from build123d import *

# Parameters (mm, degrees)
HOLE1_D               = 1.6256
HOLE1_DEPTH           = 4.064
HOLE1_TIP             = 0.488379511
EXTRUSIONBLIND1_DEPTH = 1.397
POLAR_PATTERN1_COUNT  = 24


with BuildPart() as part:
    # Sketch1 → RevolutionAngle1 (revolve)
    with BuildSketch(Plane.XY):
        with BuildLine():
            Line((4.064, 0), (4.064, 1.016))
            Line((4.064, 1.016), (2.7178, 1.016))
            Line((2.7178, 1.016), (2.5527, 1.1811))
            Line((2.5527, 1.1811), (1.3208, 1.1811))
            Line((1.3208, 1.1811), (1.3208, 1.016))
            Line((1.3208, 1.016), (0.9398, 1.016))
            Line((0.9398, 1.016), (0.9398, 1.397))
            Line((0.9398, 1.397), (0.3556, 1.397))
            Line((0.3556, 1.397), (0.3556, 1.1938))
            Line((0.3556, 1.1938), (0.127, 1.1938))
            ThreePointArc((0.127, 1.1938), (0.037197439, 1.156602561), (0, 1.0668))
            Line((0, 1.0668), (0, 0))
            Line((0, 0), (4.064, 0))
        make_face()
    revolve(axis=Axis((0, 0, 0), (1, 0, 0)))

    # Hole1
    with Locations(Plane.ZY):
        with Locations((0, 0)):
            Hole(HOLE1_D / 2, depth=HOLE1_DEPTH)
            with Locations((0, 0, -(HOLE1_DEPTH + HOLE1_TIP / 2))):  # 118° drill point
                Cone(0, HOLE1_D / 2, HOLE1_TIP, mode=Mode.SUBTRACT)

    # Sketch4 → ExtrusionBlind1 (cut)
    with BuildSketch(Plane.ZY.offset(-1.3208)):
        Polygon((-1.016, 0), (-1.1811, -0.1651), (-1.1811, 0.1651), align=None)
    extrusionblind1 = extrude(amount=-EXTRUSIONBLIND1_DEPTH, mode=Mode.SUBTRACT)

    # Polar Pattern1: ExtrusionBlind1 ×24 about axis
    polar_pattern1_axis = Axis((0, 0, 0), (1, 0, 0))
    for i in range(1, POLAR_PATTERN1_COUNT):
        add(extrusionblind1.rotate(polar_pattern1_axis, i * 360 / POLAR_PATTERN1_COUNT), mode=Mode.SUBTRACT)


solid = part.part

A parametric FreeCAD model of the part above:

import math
import FreeCAD as App
import Part
import Sketcher
Q = App.Units.Quantity

doc = App.newDocument("Part")
params = doc.addObject("Spreadsheet::Sheet", "Params")
for row, (alias, value) in enumerate([
    ("sketch1_radius", "0.005 in"),
    ("sketch1_width", "0.16 in"),
    ("sketch1_height", "0.04 in"),
    ("sketch1_width2", "0.053 in"),
    ("sketch1_width3", "0.015 in"),
    ("revolution_angle", "360 deg"),
    ("sketch2_diameter", "0.064 in"),
    ("hole_diameter", "0.064 in"),
    ("hole_depth", "0.16 in"),
    ("sketch3_width", "0.013 in"),
    ("pocket1_length", "0.055 in"),
], start=1):
    params.set(f"A{row}", alias)
    params.set(f"B{row}", "=" + value)
    params.setAlias(f"B{row}", alias)

body = doc.addObject("PartDesign::Body", "Body")

# Sketch on XY plane
sketch1 = body.newObject("Sketcher::SketchObject", "Sketch")
sketch1.AttachmentSupport = (doc.getObject("XY_Plane"), [""])
sketch1.MapMode = "FlatFace"
sketch1.addGeometry([
    Part.LineSegment(App.Vector(4.064, 0, 0), App.Vector(4.064, 1.016, 0)),  # 0
    Part.LineSegment(App.Vector(4.064, 1.016, 0), App.Vector(2.7178, 1.016, 0)),  # 1
    Part.LineSegment(App.Vector(2.7178, 1.016, 0), App.Vector(2.5527, 1.1811, 0)),  # 2
    Part.LineSegment(App.Vector(2.5527, 1.1811, 0), App.Vector(1.3208, 1.1811, 0)),  # 3
    Part.LineSegment(App.Vector(1.3208, 1.1811, 0), App.Vector(1.3208, 1.016, 0)),  # 4
    Part.LineSegment(App.Vector(1.3208, 1.016, 0), App.Vector(0.9398, 1.016, 0)),  # 5
    Part.LineSegment(App.Vector(0.9398, 1.016, 0), App.Vector(0.9398, 1.397, 0)),  # 6
    Part.LineSegment(App.Vector(0.9398, 1.397, 0), App.Vector(0.3556, 1.397, 0)),  # 7
    Part.LineSegment(App.Vector(0.3556, 1.397, 0), App.Vector(0.3556, 1.1938, 0)),  # 8
    Part.LineSegment(App.Vector(0.3556, 1.1938, 0), App.Vector(0.127, 1.1938, 0)),  # 9
    Part.ArcOfCircle(Part.Circle(App.Vector(0.127, 1.0668, 0), App.Vector(0, 0, 1), 0.127), math.radians(90), math.radians(180)),  # 10
    Part.LineSegment(App.Vector(0, 1.0668, 0), App.Vector(0, 0, 0)),  # 11
    Part.LineSegment(App.Vector(0, 0, 0), App.Vector(4.064, 0, 0)),  # 12
], False)
sketch1.addConstraint([
    Sketcher.Constraint("Coincident", 0, 2, 1, 1),
    Sketcher.Constraint("Coincident", 1, 2, 2, 1),
    Sketcher.Constraint("Coincident", 2, 2, 3, 1),
    Sketcher.Constraint("Coincident", 3, 2, 4, 1),
    Sketcher.Constraint("Coincident", 4, 2, 5, 1),
    Sketcher.Constraint("Coincident", 5, 2, 6, 1),
    Sketcher.Constraint("Coincident", 6, 2, 7, 1),
    Sketcher.Constraint("Coincident", 7, 2, 8, 1),
    Sketcher.Constraint("Coincident", 8, 2, 9, 1),
    Sketcher.Constraint("Tangent", 9, 2, 10, 1),
    Sketcher.Constraint("Tangent", 10, 2, 11, 1),
    Sketcher.Constraint("Coincident", 11, 2, 12, 1),
    Sketcher.Constraint("Coincident", 12, 2, 0, 1),
    Sketcher.Constraint("Vertical", 0),
    Sketcher.Constraint("Horizontal", 1),
    Sketcher.Constraint("Horizontal", 3),
    Sketcher.Constraint("Vertical", 4),
    Sketcher.Constraint("Horizontal", 5),
    Sketcher.Constraint("Vertical", 6),
    Sketcher.Constraint("Horizontal", 7),
    Sketcher.Constraint("Vertical", 8),
    Sketcher.Constraint("Horizontal", 9),
    Sketcher.Constraint("Vertical", 11),
    Sketcher.Constraint("Horizontal", 12),
    Sketcher.Constraint("Coincident", 11, 2, -1, 1),
    Sketcher.Constraint("Horizontal", 1, 2, 4, 2),
    Sketcher.Constraint("Equal", 5, 6),
    Sketcher.Constraint("Angle", 2, Q("135 deg")),
    Sketcher.Constraint("Radius", 10, Q("0.005 in")),
    Sketcher.Constraint("DistanceX", 12, 1, 12, 2, Q("0.16 in")),
    Sketcher.Constraint("DistanceY", 0, 1, 0, 2, Q("0.04 in")),
    Sketcher.Constraint("DistanceX", 1, 2, 1, 1, Q("0.053 in")),
    Sketcher.Constraint("DistanceX", 5, 2, 5, 1, Q("0.015 in")),
    Sketcher.Constraint("DistanceX", 7, 2, 7, 1, Q("0.023 in")),
    Sketcher.Constraint("DistanceX", 9, 2, 9, 1, Q("0.009 in")),
    Sketcher.Constraint("DistanceY", 8, 2, 8, 1, Q("0.008 in")),
    Sketcher.Constraint("DistanceX", 3, 2, 3, 1, Q("0.0485 in")),
])
sketch1.setExpression("Constraints[28]", "Params.sketch1_radius")
sketch1.setExpression("Constraints[29]", "Params.sketch1_width")
sketch1.setExpression("Constraints[30]", "Params.sketch1_height")
sketch1.setExpression("Constraints[31]", "Params.sketch1_width2")
sketch1.setExpression("Constraints[32]", "Params.sketch1_width3")
revolution = body.newObject("PartDesign::Revolution", "Revolution")
revolution.Profile = sketch1
revolution.ReferenceAxis = (sketch1, ["H_Axis"])
revolution.setExpression("Angle", "Params.revolution_angle")

# Sketch on YZ plane
sketch2 = body.newObject("Sketcher::SketchObject", "Sketch001")
sketch2.AttachmentSupport = (doc.getObject("YZ_Plane"), [""])
sketch2.MapMode = "FlatFace"
sketch2.addGeometry(Part.Circle(App.Vector(0, 0, 0), App.Vector(0, 0, 1), 0.8128), False)
sketch2.addConstraint([
    Sketcher.Constraint("Coincident", 0, 3, -1, 1),
    Sketcher.Constraint("Diameter", 0, Q("0.064 in")),
])
sketch2.setExpression("Constraints[1]", "Params.sketch2_diameter")
doc.recompute()
hole = body.newObject("PartDesign::Hole", "Hole")
hole.Profile = sketch2
hole.ThreadType = "None"
hole.setExpression("Diameter", "Params.hole_diameter")
hole.DepthType = "Dimension"
hole.setExpression("Depth", "Params.hole_depth")
hole.DrillPoint = "Angled"
hole.DrillPointAngle = 118
hole.Reversed = True

# Sketch on YZ plane
sketch3 = body.newObject("Sketcher::SketchObject", "Sketch002")
sketch3.AttachmentSupport = (doc.getObject("YZ_Plane"), [""])
sketch3.MapMode = "FlatFace"
sketch3.AttachmentOffset = App.Placement(App.Vector(0, 0, 0.052 * 25.4), App.Rotation())
sketch3.addGeometry([
    Part.LineSegment(App.Vector(-0.1651, -1.1811, 0), App.Vector(0, -1.016, 0)),
    Part.LineSegment(App.Vector(0, -1.016, 0), App.Vector(0.1651, -1.1811, 0)),
    Part.LineSegment(App.Vector(0.1651, -1.1811, 0), App.Vector(-0.1651, -1.1811, 0)),
], False)
sketch3.addConstraint([
    Sketcher.Constraint("Coincident", 0, 2, 1, 1),
    Sketcher.Constraint("Coincident", 1, 2, 2, 1),
    Sketcher.Constraint("Coincident", 2, 2, 0, 1),
    Sketcher.Constraint("Horizontal", 2),
    Sketcher.Constraint("PointOnObject", 0, 2, -2),
    Sketcher.Constraint("Perpendicular", 0, 1),
    Sketcher.Constraint("Equal", 0, 1),
    Sketcher.Constraint("DistanceX", 2, 2, 2, 1, Q("0.013 in")),
    Sketcher.Constraint("DistanceY", 0, 2, -1, 1, Q("0.04 in")),
])
sketch3.setExpression("Constraints[7]", "Params.sketch3_width")
pocket1 = body.newObject("PartDesign::Pocket", "Pocket")
pocket1.Profile = sketch3
pocket1.setExpression("Length", "Params.pocket1_length")
pocket1.Reversed = True
doc.recompute()

polarpattern = body.newObject("PartDesign::PolarPattern", "PolarPattern")
polarpattern.Originals = [pocket1]
polarpattern.Axis = (doc.getObject("X_Axis"), [""])
polarpattern.Angle = 360
polarpattern.Occurrences = 24
body.Tip = polarpattern

doc.recompute()
